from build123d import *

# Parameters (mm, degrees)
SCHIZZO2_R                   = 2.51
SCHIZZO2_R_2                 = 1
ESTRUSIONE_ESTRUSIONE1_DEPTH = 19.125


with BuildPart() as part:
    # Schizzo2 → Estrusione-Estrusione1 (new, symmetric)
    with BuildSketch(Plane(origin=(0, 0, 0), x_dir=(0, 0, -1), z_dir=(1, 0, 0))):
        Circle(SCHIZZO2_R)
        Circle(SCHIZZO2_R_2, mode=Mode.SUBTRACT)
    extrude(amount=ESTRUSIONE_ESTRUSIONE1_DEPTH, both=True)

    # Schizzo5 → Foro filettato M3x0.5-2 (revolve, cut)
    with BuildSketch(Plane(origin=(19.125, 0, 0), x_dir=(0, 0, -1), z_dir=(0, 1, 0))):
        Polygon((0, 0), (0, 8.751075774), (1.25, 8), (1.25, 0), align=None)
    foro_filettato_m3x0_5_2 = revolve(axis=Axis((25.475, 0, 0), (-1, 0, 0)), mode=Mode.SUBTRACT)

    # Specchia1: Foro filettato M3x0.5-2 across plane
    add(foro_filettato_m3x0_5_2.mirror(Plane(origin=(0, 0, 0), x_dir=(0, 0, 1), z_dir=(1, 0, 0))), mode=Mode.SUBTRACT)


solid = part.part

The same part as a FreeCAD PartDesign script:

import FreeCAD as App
import Part
import Sketcher
from FreeCAD import Vector
Q = App.Units.Quantity

doc = App.newDocument("Part")
body = doc.addObject("PartDesign::Body", "Body")

# Sketch on YZ plane
sketch1 = body.newObject("Sketcher::SketchObject", "Sketch")
sketch1.AttachmentSupport = (doc.getObject("YZ_Plane"), [""])
sketch1.MapMode = "FlatFace"
sketch1.addGeometry(Part.Circle(Vector(0, 0, 0), Vector(0, 0, 1), 2.5), False)
sketch1.addGeometry(Part.Circle(Vector(0, 0, 0), Vector(0, 0, 1), 1), False)
sketch1.addConstraint(Sketcher.Constraint("Coincident", 0, 3, -1, 1))
sketch1.addConstraint(Sketcher.Constraint("Coincident", 1, 3, -1, 1))
sketch1.addConstraint(Sketcher.Constraint("Diameter", 1, 2.0))
sketch1.addConstraint(Sketcher.Constraint("Diameter", 0, 5.02))
pad1 = body.newObject("PartDesign::Pad", "Pad")
pad1.Profile = sketch1
pad1.Length = 38.25
pad1.Midplane = True

# Sketch on XZ plane
sketch2 = body.newObject("Sketcher::SketchObject", "Sketch001")
sketch2.AttachmentSupport = (doc.getObject("XZ_Plane"), [""])
sketch2.MapMode = "FlatFace"
sketch2.addGeometry(Part.LineSegment(Vector(10.4, 0, 0), Vector(19.1, 0, 0)), False)
sketch2.addGeometry(Part.LineSegment(Vector(19.1, 0, 0), Vector(19.1, -1.2, 0)), False)
sketch2.addGeometry(Part.LineSegment(Vector(19.1, -1.2, 0), Vector(11.1, -1.2, 0)), False)
sketch2.addGeometry(Part.LineSegment(Vector(11.1, -1.2, 0), Vector(10.4, 0, 0)), False)
sketch2.addConstraint(Sketcher.Constraint("Coincident", 0, 2, 1, 1))
sketch2.addConstraint(Sketcher.Constraint("Coincident", 1, 2, 2, 1))
sketch2.addConstraint(Sketcher.Constraint("Coincident", 2, 2, 3, 1))
sketch2.addConstraint(Sketcher.Constraint("Coincident", 3, 2, 0, 1))
sketch2.addConstraint(Sketcher.Constraint("Horizontal", 0))
sketch2.addConstraint(Sketcher.Constraint("Vertical", 1))
sketch2.addConstraint(Sketcher.Constraint("Horizontal", 2))
sketch2.addConstraint(Sketcher.Constraint("PointOnObject", 0, 2, -1))
sketch2.addConstraint(Sketcher.Constraint("DistanceX", 2, 2, 2, 1, 8.0))
sketch2.addConstraint(Sketcher.Constraint("Angle", 3, Q("121 deg")))
sketch2.addConstraint(Sketcher.Constraint("DistanceY", 1, 2, 1, 1, 1.25))
sketch2.addConstraint(Sketcher.Constraint("DistanceX", -1, 1, 0, 2, 19.125))
groove = body.newObject("PartDesign::Groove", "Groove")
groove.Profile = sketch2
groove.ReferenceAxis = (sketch2, ["H_Axis"])
groove.Angle = 360
doc.recompute()

mirrored = body.newObject("PartDesign::Mirrored", "Mirrored")
mirrored.Originals = [groove]
mirrored.MirrorPlane = (doc.getObject("YZ_Plane"), [""])
body.Tip = mirrored

doc.recompute()
